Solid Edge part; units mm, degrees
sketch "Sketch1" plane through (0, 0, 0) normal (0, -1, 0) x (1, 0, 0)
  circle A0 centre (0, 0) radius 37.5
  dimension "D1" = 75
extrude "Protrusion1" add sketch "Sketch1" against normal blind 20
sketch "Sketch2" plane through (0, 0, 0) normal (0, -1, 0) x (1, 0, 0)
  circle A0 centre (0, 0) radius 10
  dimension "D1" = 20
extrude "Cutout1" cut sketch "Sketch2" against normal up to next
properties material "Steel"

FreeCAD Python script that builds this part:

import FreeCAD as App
import Part
import Sketcher
Q = App.Units.Quantity

doc = App.newDocument("Part")
body = doc.addObject("PartDesign::Body", "Body")

# Sketch on XZ plane
sketch1 = doc.addObject("Sketcher::SketchObject", "Sketch")
body.addObject(sketch1)
sketch1.AttachmentSupport = (doc.XZ_Plane, [""])
sketch1.MapMode = "FlatFace"
sketch1.addGeometry(Part.Circle(App.Vector(0, 0, 0), App.Vector(0, 0, 1), 38), False)
sketch1.addConstraint([
    Sketcher.Constraint("Coincident", 0, 3, -1, 1),
    Sketcher.Constraint("Diameter", 0, Q("75 mm")),
])
pad1 = doc.addObject("PartDesign::Pad", "Pad")
body.addObject(pad1)
pad1.Profile = sketch1
pad1.Length = 20
pad1.Reversed = True

# Sketch on XZ plane
sketch2 = doc.addObject("Sketcher::SketchObject", "Sketch001")
body.addObject(sketch2)
sketch2.AttachmentSupport = (doc.XZ_Plane, [""])
sketch2.MapMode = "FlatFace"
sketch2.addGeometry(Part.Circle(App.Vector(0, 0, 0), App.Vector(0, 0, 1), 10), False)
sketch2.addConstraint([
    Sketcher.Constraint("Coincident", 0, 3, -1, 1),
    Sketcher.Constraint("Diameter", 0, Q("20 mm")),
])
pocket1 = doc.addObject("PartDesign::Pocket", "Pocket")
body.addObject(pocket1)
pocket1.Profile = sketch2
pocket1.Type = "UpToFirst"

doc.recompute()
